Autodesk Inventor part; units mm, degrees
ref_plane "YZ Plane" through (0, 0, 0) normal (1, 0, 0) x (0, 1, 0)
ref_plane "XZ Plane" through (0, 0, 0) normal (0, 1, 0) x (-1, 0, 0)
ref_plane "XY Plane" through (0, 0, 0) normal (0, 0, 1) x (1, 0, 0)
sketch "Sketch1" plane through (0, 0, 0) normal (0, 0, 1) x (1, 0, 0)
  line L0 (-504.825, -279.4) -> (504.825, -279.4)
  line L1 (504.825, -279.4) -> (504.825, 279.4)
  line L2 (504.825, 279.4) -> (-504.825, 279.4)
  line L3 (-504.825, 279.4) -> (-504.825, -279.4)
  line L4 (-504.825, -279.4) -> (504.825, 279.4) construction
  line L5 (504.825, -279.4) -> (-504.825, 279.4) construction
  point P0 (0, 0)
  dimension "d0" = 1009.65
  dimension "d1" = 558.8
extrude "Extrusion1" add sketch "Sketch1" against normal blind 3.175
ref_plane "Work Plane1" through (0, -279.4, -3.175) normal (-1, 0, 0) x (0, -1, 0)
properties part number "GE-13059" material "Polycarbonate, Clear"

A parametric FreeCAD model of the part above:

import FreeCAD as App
import Part
import Sketcher
from FreeCAD import Vector
Q = App.Units.Quantity


def add_polygon(sketch, points):
    """Adds a closed chain of lines whose ends are joined by coincident constraints."""
    first, n = sketch.GeometryCount, len(points)
    for a, b in zip(points, points[1:] + points[:1]):
        sketch.addGeometry(Part.LineSegment(App.Vector(*a, 0), App.Vector(*b, 0)), False)
    for i in range(n):
        sketch.addConstraint(Sketcher.Constraint("Coincident", first + i, 2, first + (i + 1) % n, 1))

doc = App.newDocument("Part")
body = doc.addObject("PartDesign::Body", "Body")

sketch1 = doc.addObject("Sketcher::SketchObject", "Sketch")
body.addObject(sketch1)
sketch1.AttachmentSupport = (doc.XY_Plane, [""])
sketch1.MapMode = "FlatFace"
add_polygon(sketch1, [(-504.825, 279.4), (-504.825, -279.4), (504.825, -279.4), (504.825, 279.4)])
sketch1.addConstraint(Sketcher.Constraint("Vertical", 0))
sketch1.addConstraint(Sketcher.Constraint("Horizontal", 1))
sketch1.addConstraint(Sketcher.Constraint("Vertical", 2))
sketch1.addConstraint(Sketcher.Constraint("Horizontal", 3))
sketch1.addConstraint(Sketcher.Constraint("Symmetric", 0, 2, 2, 2, -1, 1))
sketch1.addConstraint(Sketcher.Constraint("DistanceY", 0, 2, 0, 1, Q("22 in")))
sketch1.addConstraint(Sketcher.Constraint("DistanceX", 1, 1, 1, 2, Q("39.75 in")))
pad1 = doc.addObject("PartDesign::Pad", "Pad")
body.addObject(pad1)
pad1.Profile = sketch1
pad1.Length = Q("0.125 in")
pad1.Reversed = True

doc.recompute()
